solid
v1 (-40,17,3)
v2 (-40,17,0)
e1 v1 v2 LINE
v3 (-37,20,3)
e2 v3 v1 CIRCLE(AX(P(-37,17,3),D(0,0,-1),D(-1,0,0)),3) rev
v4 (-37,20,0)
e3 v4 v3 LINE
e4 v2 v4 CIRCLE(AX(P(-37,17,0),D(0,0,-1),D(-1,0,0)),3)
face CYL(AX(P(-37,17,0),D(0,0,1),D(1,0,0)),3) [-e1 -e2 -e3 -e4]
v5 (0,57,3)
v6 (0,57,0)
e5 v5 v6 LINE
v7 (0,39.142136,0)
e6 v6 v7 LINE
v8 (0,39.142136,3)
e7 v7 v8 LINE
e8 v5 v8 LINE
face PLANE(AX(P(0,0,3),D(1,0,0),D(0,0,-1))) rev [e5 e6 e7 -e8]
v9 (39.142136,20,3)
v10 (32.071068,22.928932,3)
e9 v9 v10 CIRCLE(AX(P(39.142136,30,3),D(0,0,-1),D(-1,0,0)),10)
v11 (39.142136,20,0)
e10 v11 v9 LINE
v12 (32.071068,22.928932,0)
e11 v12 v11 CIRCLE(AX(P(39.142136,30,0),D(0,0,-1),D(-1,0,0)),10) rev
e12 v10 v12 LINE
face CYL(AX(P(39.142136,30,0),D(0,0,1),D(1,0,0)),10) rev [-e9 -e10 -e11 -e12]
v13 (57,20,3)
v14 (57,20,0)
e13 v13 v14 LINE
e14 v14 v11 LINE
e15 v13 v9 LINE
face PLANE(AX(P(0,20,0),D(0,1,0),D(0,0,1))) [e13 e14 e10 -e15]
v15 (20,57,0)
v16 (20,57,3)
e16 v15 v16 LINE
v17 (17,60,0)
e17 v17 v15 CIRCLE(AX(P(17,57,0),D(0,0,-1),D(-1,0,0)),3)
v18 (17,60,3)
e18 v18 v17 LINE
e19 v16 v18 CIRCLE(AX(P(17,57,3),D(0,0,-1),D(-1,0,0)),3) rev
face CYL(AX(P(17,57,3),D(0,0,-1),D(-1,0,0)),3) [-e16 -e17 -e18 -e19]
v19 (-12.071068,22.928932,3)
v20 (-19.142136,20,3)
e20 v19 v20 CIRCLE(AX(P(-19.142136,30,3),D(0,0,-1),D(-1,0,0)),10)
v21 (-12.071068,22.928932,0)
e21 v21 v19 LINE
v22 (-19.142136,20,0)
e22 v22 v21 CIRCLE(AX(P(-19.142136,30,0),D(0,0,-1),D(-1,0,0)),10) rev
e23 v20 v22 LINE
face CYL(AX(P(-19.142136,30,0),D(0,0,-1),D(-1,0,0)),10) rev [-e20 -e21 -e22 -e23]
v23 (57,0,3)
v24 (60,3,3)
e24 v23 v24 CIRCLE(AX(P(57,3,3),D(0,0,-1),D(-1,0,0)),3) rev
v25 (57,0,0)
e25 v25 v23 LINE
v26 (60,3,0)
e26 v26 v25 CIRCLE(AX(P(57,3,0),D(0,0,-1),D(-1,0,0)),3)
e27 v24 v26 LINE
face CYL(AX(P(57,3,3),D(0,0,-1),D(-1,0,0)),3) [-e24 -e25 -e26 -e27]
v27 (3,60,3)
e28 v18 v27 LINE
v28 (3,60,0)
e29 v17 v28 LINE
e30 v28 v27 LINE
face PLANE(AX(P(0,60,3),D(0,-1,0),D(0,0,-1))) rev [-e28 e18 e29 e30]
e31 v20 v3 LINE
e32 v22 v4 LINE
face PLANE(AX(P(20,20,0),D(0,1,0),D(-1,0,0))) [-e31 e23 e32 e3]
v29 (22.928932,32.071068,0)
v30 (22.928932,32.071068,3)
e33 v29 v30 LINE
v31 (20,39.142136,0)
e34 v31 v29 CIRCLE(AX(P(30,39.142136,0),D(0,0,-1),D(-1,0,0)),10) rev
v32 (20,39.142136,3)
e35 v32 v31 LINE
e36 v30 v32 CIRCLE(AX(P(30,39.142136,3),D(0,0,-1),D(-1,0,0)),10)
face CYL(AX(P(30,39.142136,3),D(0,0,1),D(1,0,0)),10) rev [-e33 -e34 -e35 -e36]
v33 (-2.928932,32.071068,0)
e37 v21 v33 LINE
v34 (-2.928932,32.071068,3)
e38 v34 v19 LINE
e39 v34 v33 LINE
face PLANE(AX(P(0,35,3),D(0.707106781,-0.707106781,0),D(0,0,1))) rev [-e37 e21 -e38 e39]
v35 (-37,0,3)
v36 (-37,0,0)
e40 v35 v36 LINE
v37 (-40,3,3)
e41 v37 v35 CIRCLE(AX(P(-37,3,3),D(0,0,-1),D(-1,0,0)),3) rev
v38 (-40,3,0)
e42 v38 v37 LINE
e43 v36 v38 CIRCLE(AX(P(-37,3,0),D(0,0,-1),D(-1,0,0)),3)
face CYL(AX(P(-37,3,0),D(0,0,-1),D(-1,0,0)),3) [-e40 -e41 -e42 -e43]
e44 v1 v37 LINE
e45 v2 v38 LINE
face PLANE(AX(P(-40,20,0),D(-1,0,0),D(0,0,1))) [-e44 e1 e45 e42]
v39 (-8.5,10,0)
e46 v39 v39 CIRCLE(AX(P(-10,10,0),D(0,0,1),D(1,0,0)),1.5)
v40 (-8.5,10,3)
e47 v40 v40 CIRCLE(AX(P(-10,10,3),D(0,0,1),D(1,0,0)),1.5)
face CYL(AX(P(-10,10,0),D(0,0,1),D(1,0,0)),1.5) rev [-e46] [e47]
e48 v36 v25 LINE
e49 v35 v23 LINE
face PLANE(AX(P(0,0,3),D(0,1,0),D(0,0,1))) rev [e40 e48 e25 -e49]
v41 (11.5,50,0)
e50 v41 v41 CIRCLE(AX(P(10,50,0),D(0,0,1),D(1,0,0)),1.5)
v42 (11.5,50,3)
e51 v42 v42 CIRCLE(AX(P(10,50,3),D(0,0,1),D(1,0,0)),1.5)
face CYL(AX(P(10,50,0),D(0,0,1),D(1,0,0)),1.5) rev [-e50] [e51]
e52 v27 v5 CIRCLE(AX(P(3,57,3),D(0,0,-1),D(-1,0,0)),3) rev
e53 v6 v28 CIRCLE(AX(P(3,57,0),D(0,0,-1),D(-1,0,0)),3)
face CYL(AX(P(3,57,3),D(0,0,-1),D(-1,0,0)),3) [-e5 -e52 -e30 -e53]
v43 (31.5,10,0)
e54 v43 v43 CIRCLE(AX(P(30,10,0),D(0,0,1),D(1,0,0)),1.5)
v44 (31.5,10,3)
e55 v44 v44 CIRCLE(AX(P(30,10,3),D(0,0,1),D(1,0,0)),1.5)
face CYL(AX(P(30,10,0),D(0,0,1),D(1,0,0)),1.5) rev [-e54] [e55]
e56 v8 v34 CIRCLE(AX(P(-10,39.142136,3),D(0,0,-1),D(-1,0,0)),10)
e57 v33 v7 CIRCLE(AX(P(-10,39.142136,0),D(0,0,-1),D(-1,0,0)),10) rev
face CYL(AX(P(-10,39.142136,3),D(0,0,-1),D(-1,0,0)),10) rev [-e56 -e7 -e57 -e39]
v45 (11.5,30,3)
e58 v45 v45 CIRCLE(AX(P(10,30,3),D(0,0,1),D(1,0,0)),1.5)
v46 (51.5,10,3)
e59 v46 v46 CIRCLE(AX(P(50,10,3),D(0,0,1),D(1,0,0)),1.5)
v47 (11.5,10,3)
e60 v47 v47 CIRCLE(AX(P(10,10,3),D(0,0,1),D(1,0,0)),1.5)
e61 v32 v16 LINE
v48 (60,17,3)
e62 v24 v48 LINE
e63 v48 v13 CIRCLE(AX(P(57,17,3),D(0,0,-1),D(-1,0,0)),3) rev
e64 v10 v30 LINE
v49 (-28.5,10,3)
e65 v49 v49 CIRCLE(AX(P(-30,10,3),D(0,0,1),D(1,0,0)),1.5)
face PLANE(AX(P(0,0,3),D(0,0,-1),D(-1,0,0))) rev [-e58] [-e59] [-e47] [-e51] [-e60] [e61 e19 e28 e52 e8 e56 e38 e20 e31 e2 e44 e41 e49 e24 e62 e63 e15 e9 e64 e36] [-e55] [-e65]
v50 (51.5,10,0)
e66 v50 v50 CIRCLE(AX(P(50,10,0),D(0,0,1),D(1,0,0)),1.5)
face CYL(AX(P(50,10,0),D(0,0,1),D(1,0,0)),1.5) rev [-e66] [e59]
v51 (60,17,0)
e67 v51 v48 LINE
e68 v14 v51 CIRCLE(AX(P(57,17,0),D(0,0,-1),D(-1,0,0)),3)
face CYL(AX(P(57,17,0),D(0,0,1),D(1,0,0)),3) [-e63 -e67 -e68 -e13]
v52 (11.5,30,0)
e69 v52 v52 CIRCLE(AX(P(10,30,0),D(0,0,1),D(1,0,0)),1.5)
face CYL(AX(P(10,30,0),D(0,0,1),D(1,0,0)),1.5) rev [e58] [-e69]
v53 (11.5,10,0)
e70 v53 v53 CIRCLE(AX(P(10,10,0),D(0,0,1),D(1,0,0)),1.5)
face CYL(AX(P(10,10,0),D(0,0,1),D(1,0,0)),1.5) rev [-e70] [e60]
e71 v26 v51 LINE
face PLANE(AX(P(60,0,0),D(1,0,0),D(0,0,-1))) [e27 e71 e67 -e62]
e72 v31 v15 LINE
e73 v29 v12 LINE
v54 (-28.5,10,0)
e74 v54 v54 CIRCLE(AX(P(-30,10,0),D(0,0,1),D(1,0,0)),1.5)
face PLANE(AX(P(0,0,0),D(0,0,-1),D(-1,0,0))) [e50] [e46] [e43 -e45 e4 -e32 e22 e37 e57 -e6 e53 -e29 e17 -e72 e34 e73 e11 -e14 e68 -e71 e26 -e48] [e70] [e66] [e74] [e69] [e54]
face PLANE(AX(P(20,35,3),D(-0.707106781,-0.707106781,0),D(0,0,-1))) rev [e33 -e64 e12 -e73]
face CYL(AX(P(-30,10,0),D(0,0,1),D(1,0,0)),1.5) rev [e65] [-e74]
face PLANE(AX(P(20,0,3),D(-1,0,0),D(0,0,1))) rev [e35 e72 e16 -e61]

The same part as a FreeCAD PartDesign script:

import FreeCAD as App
import Part
import Sketcher

V = App.Vector
Q = App.Units.Quantity


def edges_at(feature, points):
    """Names of the edges that pass closest to the given points."""
    edges = feature.Shape.Edges
    near = lambda p: min(range(len(edges)), key=lambda i: edges[i].distToShape(Part.Vertex(*p))[0])
    return sorted({f"Edge{near(p) + 1}" for p in points})

doc = App.newDocument("Part")
params = doc.addObject("Spreadsheet::Sheet", "Params")
for row, (alias, value) in enumerate([
    ("sketch1_width", "20 mm"),
    ("sketch1_height", "60 mm"),
    ("pad1_length", "3 mm"),
    ("sketch2_width", "60 mm"),
    ("sketch2_height", "20 mm"),
    ("pad2_length", "3 mm"),
    ("sketch3_width", "60 mm"),
    ("sketch3_height", "20 mm"),
    ("pad3_length", "3 mm"),
    ("sketch4_diameter", "3 mm"),
    ("pocket1_length", "3 mm"),
    ("fillet_radius", "3 mm"),
    ("chamfer_size", "15 mm"),
    ("fillet2_radius", "10 mm"),
], start=1):
    params.set(f"A{row}", alias)
    params.set(f"B{row}", "=" + value)
    params.setAlias(f"B{row}", alias)

body = doc.addObject("PartDesign::Body", "Body")

# Sketch on XY plane
sketch1 = body.newObject("Sketcher::SketchObject", "Sketch")
sketch1.AttachmentSupport = (doc.getObject("XY_Plane"), [""])
sketch1.MapMode = "FlatFace"
sketch1.addGeometry(Part.LineSegment(V(0, 60, 0), V(0, 0, 0)), False)
sketch1.addGeometry(Part.LineSegment(V(0, 0, 0), V(20, 0, 0)), False)
sketch1.addGeometry(Part.LineSegment(V(20, 0, 0), V(20, 60, 0)), False)
sketch1.addGeometry(Part.LineSegment(V(20, 60, 0), V(0, 60, 0)), False)
sketch1.addConstraint(Sketcher.Constraint("Coincident", 0, 2, 1, 1))
sketch1.addConstraint(Sketcher.Constraint("Coincident", 1, 2, 2, 1))
sketch1.addConstraint(Sketcher.Constraint("Coincident", 2, 2, 3, 1))
sketch1.addConstraint(Sketcher.Constraint("Coincident", 3, 2, 0, 1))
sketch1.addConstraint(Sketcher.Constraint("Vertical", 0))
sketch1.addConstraint(Sketcher.Constraint("Horizontal", 1))
sketch1.addConstraint(Sketcher.Constraint("Vertical", 2))
sketch1.addConstraint(Sketcher.Constraint("Horizontal", 3))
sketch1.addConstraint(Sketcher.Constraint("Coincident", 0, 2, -1, 1))
sketch1.addConstraint(Sketcher.Constraint("DistanceX", 1, 1, 1, 2, Q("20 mm")))
sketch1.addConstraint(Sketcher.Constraint("DistanceY", 0, 2, 0, 1, Q("60 mm")))
sketch1.setExpression("Constraints[9]", "Params.sketch1_width")
sketch1.setExpression("Constraints[10]", "Params.sketch1_height")
pad1 = body.newObject("PartDesign::Pad", "Pad")
pad1.Profile = sketch1
pad1.setExpression("Length", "Params.pad1_length")

# Sketch on XY plane
sketch2 = body.newObject("Sketcher::SketchObject", "Sketch001")
sketch2.AttachmentSupport = (doc.getObject("XY_Plane"), [""])
sketch2.MapMode = "FlatFace"
sketch2.AttachmentOffset = App.Placement(V(0, 0, 3), App.Rotation())
sketch2.addGeometry(Part.LineSegment(V(0, 20, 0), V(0, 0, 0)), False)
sketch2.addGeometry(Part.LineSegment(V(0, 0, 0), V(60, 0, 0)), False)
sketch2.addGeometry(Part.LineSegment(V(60, 0, 0), V(60, 20, 0)), False)
sketch2.addGeometry(Part.LineSegment(V(60, 20, 0), V(0, 20, 0)), False)
sketch2.addConstraint(Sketcher.Constraint("Coincident", 0, 2, 1, 1))
sketch2.addConstraint(Sketcher.Constraint("Coincident", 1, 2, 2, 1))
sketch2.addConstraint(Sketcher.Constraint("Coincident", 2, 2, 3, 1))
sketch2.addConstraint(Sketcher.Constraint("Coincident", 3, 2, 0, 1))
sketch2.addConstraint(Sketcher.Constraint("Vertical", 0))
sketch2.addConstraint(Sketcher.Constraint("Horizontal", 1))
sketch2.addConstraint(Sketcher.Constraint("Vertical", 2))
sketch2.addConstraint(Sketcher.Constraint("Horizontal", 3))
sketch2.addConstraint(Sketcher.Constraint("Coincident", 0, 2, -1, 1))
sketch2.addConstraint(Sketcher.Constraint("DistanceX", 1, 1, 1, 2, Q("60 mm")))
sketch2.addConstraint(Sketcher.Constraint("DistanceY", 0, 2, 0, 1, Q("20 mm")))
sketch2.setExpression("Constraints[9]", "Params.sketch2_width")
sketch2.setExpression("Constraints[10]", "Params.sketch2_height")
pad2 = body.newObject("PartDesign::Pad", "Pad001")
pad2.Profile = sketch2
pad2.setExpression("Length", "Params.pad2_length")
pad2.Reversed = True

# Sketch on XY plane
sketch3 = body.newObject("Sketcher::SketchObject", "Sketch002")
sketch3.AttachmentSupport = (doc.getObject("XY_Plane"), [""])
sketch3.MapMode = "FlatFace"
sketch3.AttachmentOffset = App.Placement(V(0, 0, 3), App.Rotation())
sketch3.addGeometry(Part.LineSegment(V(-40, 20, 0), V(-40, 0, 0)), False)
sketch3.addGeometry(Part.LineSegment(V(-40, 0, 0), V(20, 0, 0)), False)
sketch3.addGeometry(Part.LineSegment(V(20, 0, 0), V(20, 20, 0)), False)
sketch3.addGeometry(Part.LineSegment(V(20, 20, 0), V(-40, 20, 0)), False)
sketch3.addConstraint(Sketcher.Constraint("Coincident", 0, 2, 1, 1))
sketch3.addConstraint(Sketcher.Constraint("Coincident", 1, 2, 2, 1))
sketch3.addConstraint(Sketcher.Constraint("Coincident", 2, 2, 3, 1))
sketch3.addConstraint(Sketcher.Constraint("Coincident", 3, 2, 0, 1))
sketch3.addConstraint(Sketcher.Constraint("Vertical", 0))
sketch3.addConstraint(Sketcher.Constraint("Horizontal", 1))
sketch3.addConstraint(Sketcher.Constraint("Vertical", 2))
sketch3.addConstraint(Sketcher.Constraint("Horizontal", 3))
sketch3.addConstraint(Sketcher.Constraint("PointOnObject", 0, 2, -1))
sketch3.addConstraint(Sketcher.Constraint("DistanceX", 1, 1, 1, 2, Q("60 mm")))
sketch3.addConstraint(Sketcher.Constraint("DistanceY", 0, 2, 0, 1, Q("20 mm")))
sketch3.addConstraint(Sketcher.Constraint("DistanceX", 0, 2, -1, 1, Q("40 mm")))
sketch3.setExpression("Constraints[9]", "Params.sketch3_width")
sketch3.setExpression("Constraints[10]", "Params.sketch3_height")
pad3 = body.newObject("PartDesign::Pad", "Pad002")
pad3.Profile = sketch3
pad3.setExpression("Length", "Params.pad3_length")
pad3.Reversed = True

# Sketch on XY plane
sketch4 = body.newObject("Sketcher::SketchObject", "Sketch003")
sketch4.AttachmentSupport = (doc.getObject("XY_Plane"), [""])
sketch4.MapMode = "FlatFace"
sketch4.AttachmentOffset = App.Placement(V(0, 0, 3), App.Rotation())
sketch4.addGeometry(Part.Circle(V(10, 10, 0), V(0, 0, 1), 1.5), False)
sketch4.addGeometry(Part.Circle(V(10, 30, 0), V(0, 0, 1), 1.5), False)
sketch4.addGeometry(Part.Circle(V(10, 50, 0), V(0, 0, 1), 1.5), False)
sketch4.addGeometry(Part.Circle(V(-30, 10, 0), V(0, 0, 1), 1.5), False)
sketch4.addGeometry(Part.Circle(V(-10, 10, 0), V(0, 0, 1), 1.5), False)
sketch4.addGeometry(Part.Circle(V(30, 10, 0), V(0, 0, 1), 1.5), False)
sketch4.addGeometry(Part.Circle(V(50, 10, 0), V(0, 0, 1), 1.5), False)
sketch4.addConstraint(Sketcher.Constraint("Equal", 0, 1))
sketch4.addConstraint(Sketcher.Constraint("Equal", 1, 2))
sketch4.addConstraint(Sketcher.Constraint("Equal", 2, 3))
sketch4.addConstraint(Sketcher.Constraint("Equal", 3, 4))
sketch4.addConstraint(Sketcher.Constraint("Equal", 4, 5))
sketch4.addConstraint(Sketcher.Constraint("Equal", 5, 6))
sketch4.addConstraint(Sketcher.Constraint("Symmetric", 0, 3, 4, 3, -2))
sketch4.addConstraint(Sketcher.Constraint("Symmetric", 3, 3, 5, 3, -2))
sketch4.addConstraint(Sketcher.Constraint("Horizontal", 0, 3, 3, 3))
sketch4.addConstraint(Sketcher.Constraint("Horizontal", 5, 3, 6, 3))
sketch4.addConstraint(Sketcher.Constraint("Vertical", 0, 3, 1, 3))
sketch4.addConstraint(Sketcher.Constraint("Vertical", 1, 3, 2, 3))
sketch4.addConstraint(Sketcher.Constraint("Diameter", 0, Q("3 mm")))
sketch4.addConstraint(Sketcher.Constraint("DistanceX", -1, 1, 0, 3, Q("10 mm")))
sketch4.addConstraint(Sketcher.Constraint("DistanceY", -1, 1, 0, 3, Q("10 mm")))
sketch4.addConstraint(Sketcher.Constraint("DistanceY", -1, 1, 1, 3, Q("30 mm")))
sketch4.addConstraint(Sketcher.Constraint("DistanceY", -1, 1, 2, 3, Q("50 mm")))
sketch4.addConstraint(Sketcher.Constraint("DistanceX", 3, 3, -1, 1, Q("30 mm")))
sketch4.addConstraint(Sketcher.Constraint("DistanceX", -1, 1, 6, 3, Q("50 mm")))
sketch4.setExpression("Constraints[12]", "Params.sketch4_diameter")
pocket1 = body.newObject("PartDesign::Pocket", "Pocket")
pocket1.Profile = sketch4
pocket1.setExpression("Length", "Params.pocket1_length")
doc.recompute()

fillet = body.newObject("PartDesign::Fillet", "Fillet")
fillet.Base = (pocket1, edges_at(pocket1, [
    (60, 0, 1.5),
    (60, 20, 1.5),
    (-40, 20, 1.5),
    (-40, 0, 1.5),
    (0, 60, 1.5),
    (20, 60, 1.5),
]))
fillet.setExpression("Radius", "Params.fillet_radius")
doc.recompute()

chamfer = body.newObject("PartDesign::Chamfer", "Chamfer")
chamfer.Base = (fillet, edges_at(fillet, [(20, 20, 1.5), (0, 20, 1.5)]))
chamfer.setExpression("Size", "Params.chamfer_size")
doc.recompute()

fillet2 = body.newObject("PartDesign::Fillet", "Fillet001")
fillet2.Base = (chamfer, edges_at(chamfer, [
    (20, 35, 1.5),
    (35, 20, 1.5),
    (0, 35, 1.5),
    (-15, 20, 1.5),
]))
fillet2.setExpression("Radius", "Params.fillet2_radius")

doc.recompute()
